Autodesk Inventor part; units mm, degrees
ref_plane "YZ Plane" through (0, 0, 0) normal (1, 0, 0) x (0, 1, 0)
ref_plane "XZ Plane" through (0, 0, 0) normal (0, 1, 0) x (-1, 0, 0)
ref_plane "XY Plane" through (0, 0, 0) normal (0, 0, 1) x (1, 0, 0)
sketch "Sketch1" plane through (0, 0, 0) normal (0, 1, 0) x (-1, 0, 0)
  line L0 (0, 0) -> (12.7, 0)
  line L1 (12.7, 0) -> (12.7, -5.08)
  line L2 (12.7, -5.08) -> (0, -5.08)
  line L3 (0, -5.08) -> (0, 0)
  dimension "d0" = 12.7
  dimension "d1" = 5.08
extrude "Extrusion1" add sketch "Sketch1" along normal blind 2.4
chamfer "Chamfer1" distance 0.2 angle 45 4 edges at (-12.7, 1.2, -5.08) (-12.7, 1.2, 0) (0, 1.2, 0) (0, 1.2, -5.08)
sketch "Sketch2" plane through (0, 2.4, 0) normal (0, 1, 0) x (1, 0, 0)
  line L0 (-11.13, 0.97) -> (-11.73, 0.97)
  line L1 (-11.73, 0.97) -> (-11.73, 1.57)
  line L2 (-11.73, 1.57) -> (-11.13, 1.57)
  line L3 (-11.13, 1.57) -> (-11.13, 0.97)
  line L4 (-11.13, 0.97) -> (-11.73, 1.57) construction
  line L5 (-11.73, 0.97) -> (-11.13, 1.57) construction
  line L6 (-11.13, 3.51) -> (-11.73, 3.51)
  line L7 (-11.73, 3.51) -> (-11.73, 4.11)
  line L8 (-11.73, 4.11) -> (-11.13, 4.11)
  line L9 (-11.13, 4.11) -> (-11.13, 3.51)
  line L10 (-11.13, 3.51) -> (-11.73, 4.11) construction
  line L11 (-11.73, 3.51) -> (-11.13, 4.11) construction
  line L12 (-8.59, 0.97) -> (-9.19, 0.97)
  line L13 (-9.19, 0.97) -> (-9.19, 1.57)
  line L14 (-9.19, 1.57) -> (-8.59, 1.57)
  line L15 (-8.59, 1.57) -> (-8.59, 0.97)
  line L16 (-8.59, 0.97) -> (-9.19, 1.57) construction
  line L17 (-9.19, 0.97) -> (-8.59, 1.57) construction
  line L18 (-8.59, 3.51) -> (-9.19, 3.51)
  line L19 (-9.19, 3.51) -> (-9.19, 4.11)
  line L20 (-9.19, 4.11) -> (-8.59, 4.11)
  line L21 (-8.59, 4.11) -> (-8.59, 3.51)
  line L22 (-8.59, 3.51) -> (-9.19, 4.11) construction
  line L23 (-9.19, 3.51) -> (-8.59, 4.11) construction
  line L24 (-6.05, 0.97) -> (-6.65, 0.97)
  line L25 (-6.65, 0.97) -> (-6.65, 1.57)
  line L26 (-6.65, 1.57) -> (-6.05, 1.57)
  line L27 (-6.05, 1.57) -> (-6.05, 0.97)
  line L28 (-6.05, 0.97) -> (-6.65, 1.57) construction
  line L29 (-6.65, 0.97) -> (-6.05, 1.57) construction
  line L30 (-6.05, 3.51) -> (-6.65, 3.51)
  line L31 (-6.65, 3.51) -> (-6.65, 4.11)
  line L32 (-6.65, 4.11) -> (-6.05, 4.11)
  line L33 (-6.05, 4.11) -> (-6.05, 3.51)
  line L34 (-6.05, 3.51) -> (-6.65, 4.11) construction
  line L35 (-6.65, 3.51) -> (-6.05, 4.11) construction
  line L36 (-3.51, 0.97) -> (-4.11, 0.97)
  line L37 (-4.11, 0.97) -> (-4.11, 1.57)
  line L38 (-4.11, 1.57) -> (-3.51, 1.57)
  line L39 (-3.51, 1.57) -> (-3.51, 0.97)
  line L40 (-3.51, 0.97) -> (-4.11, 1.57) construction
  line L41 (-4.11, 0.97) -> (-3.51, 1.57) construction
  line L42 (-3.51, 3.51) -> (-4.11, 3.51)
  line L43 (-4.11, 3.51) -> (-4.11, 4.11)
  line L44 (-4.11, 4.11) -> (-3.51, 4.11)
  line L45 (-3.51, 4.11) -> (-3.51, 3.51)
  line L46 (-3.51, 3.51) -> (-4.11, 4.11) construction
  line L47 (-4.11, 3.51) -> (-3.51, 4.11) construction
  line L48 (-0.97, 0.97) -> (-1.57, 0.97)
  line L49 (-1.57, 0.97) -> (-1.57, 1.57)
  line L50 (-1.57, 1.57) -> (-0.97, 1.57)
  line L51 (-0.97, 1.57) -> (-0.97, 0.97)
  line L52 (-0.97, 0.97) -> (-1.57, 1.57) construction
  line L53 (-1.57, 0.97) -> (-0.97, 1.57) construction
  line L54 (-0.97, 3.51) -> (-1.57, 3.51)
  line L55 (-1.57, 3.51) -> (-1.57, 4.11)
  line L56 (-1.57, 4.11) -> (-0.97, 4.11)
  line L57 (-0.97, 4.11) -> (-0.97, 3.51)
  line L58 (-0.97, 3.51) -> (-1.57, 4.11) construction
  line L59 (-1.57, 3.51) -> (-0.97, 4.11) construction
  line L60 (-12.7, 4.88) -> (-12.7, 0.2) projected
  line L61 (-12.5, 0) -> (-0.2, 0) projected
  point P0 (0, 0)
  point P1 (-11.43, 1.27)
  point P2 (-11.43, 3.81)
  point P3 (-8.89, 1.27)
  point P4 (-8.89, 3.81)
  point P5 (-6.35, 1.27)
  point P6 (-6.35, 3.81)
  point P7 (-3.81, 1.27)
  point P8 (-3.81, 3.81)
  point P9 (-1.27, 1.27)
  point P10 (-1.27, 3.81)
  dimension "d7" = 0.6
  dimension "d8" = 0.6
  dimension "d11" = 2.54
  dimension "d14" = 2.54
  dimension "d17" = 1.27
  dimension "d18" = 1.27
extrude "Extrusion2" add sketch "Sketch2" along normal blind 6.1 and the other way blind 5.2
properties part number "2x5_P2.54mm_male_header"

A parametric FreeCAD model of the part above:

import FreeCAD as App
import Part
import Sketcher
from FreeCAD import Vector


def edges_at(feature, points):
    """Names of the edges that pass closest to the given points."""
    edges = feature.Shape.Edges
    near = lambda p: min(range(len(edges)), key=lambda i: edges[i].distToShape(Part.Vertex(*p))[0])
    return sorted({f"Edge{near(p) + 1}" for p in points})


def add_polygon(sketch, points):
    """Adds a closed chain of lines whose ends are joined by coincident constraints."""
    first, n = sketch.GeometryCount, len(points)
    for a, b in zip(points, points[1:] + points[:1]):
        sketch.addGeometry(Part.LineSegment(App.Vector(*a, 0), App.Vector(*b, 0)), False)
    for i in range(n):
        sketch.addConstraint(Sketcher.Constraint("Coincident", first + i, 2, first + (i + 1) % n, 1))

doc = App.newDocument("Part")
body = doc.addObject("PartDesign::Body", "Body")

sketch1 = body.newObject("Sketcher::SketchObject", "Sketch")
sketch1.AttachmentSupport = (doc.getObject("XZ_Plane"), [""])
sketch1.MapMode = "FlatFace"
add_polygon(sketch1, [(-13, 0), (0, 0), (0, -5), (-13, -5)])
sketch1.addConstraint(Sketcher.Constraint("Horizontal", 0))
sketch1.addConstraint(Sketcher.Constraint("Vertical", 1))
sketch1.addConstraint(Sketcher.Constraint("Horizontal", 2))
sketch1.addConstraint(Sketcher.Constraint("Vertical", 3))
sketch1.addConstraint(Sketcher.Constraint("Coincident", 0, 2, -1, 1))
sketch1.addConstraint(Sketcher.Constraint("DistanceX", 0, 1, 0, 2, 12.7))
sketch1.addConstraint(Sketcher.Constraint("DistanceY", 1, 2, 1, 1, 5.08))
pad1 = body.newObject("PartDesign::Pad", "Pad")
pad1.Profile = sketch1
pad1.Length = 2.4
pad1.Reversed = True
doc.recompute()

chamfer = body.newObject("PartDesign::Chamfer", "Chamfer")
chamfer.Base = (pad1, edges_at(pad1, [
    (-12.7, 1.2, -5.08),
    (-12.7, 1.2, 0),
    (0, 1.2, 0),
    (0, 1.2, -5.08),
]))
chamfer.Size = 0.2

sketch2 = body.newObject("Sketcher::SketchObject", "Sketch001")
sketch2.AttachmentSupport = (doc.getObject("XZ_Plane"), [""])
sketch2.MapMode = "FlatFace"
sketch2.AttachmentOffset = App.Placement(Vector(0, 0, -2.4), App.Rotation())
add_polygon(sketch2, [(-11.7, -1), (-11.1, -1), (-11.1, -1.6), (-11.7, -1.6)])
add_polygon(sketch2, [(-11.7, -3.5), (-11.1, -3.5), (-11.1, -4.1), (-11.7, -4.1)])
add_polygon(sketch2, [(-9.2, -1), (-8.6, -1), (-8.6, -1.6), (-9.2, -1.6)])
add_polygon(sketch2, [(-9.2, -3.5), (-8.6, -3.5), (-8.6, -4.1), (-9.2, -4.1)])
add_polygon(sketch2, [(-6.7, -1), (-6, -1), (-6, -1.6), (-6.7, -1.6)])
add_polygon(sketch2, [(-6.7, -3.5), (-6, -3.5), (-6, -4.1), (-6.7, -4.1)])
add_polygon(sketch2, [(-4.1, -1), (-3.5, -1), (-3.5, -1.6), (-4.1, -1.6)])
add_polygon(sketch2, [(-4.1, -3.5), (-3.5, -3.5), (-3.5, -4.1), (-4.1, -4.1)])
add_polygon(sketch2, [(-1.6, -1), (-1, -1), (-1, -1.6), (-1.6, -1.6)])
add_polygon(sketch2, [(-1.6, -3.5), (-1, -3.5), (-1, -4.1), (-1.6, -4.1)])
sketch2.addConstraint(Sketcher.Constraint("Horizontal", 0))
sketch2.addConstraint(Sketcher.Constraint("Vertical", 1))
sketch2.addConstraint(Sketcher.Constraint("Horizontal", 2))
sketch2.addConstraint(Sketcher.Constraint("Vertical", 3))
sketch2.addConstraint(Sketcher.Constraint("Horizontal", 4))
sketch2.addConstraint(Sketcher.Constraint("Vertical", 5))
sketch2.addConstraint(Sketcher.Constraint("Horizontal", 6))
sketch2.addConstraint(Sketcher.Constraint("Vertical", 7))
sketch2.addConstraint(Sketcher.Constraint("Horizontal", 8))
sketch2.addConstraint(Sketcher.Constraint("Vertical", 9))
sketch2.addConstraint(Sketcher.Constraint("Horizontal", 10))
sketch2.addConstraint(Sketcher.Constraint("Vertical", 11))
sketch2.addConstraint(Sketcher.Constraint("Horizontal", 12))
sketch2.addConstraint(Sketcher.Constraint("Vertical", 13))
sketch2.addConstraint(Sketcher.Constraint("Horizontal", 14))
sketch2.addConstraint(Sketcher.Constraint("Vertical", 15))
sketch2.addConstraint(Sketcher.Constraint("Horizontal", 16))
sketch2.addConstraint(Sketcher.Constraint("Vertical", 17))
sketch2.addConstraint(Sketcher.Constraint("Horizontal", 18))
sketch2.addConstraint(Sketcher.Constraint("Vertical", 19))
sketch2.addConstraint(Sketcher.Constraint("Horizontal", 20))
sketch2.addConstraint(Sketcher.Constraint("Vertical", 21))
sketch2.addConstraint(Sketcher.Constraint("Horizontal", 22))
sketch2.addConstraint(Sketcher.Constraint("Vertical", 23))
sketch2.addConstraint(Sketcher.Constraint("Horizontal", 24))
sketch2.addConstraint(Sketcher.Constraint("Vertical", 25))
sketch2.addConstraint(Sketcher.Constraint("Horizontal", 26))
sketch2.addConstraint(Sketcher.Constraint("Vertical", 27))
sketch2.addConstraint(Sketcher.Constraint("Horizontal", 28))
sketch2.addConstraint(Sketcher.Constraint("Vertical", 29))
sketch2.addConstraint(Sketcher.Constraint("Horizontal", 30))
sketch2.addConstraint(Sketcher.Constraint("Vertical", 31))
sketch2.addConstraint(Sketcher.Constraint("Horizontal", 32))
sketch2.addConstraint(Sketcher.Constraint("Vertical", 33))
sketch2.addConstraint(Sketcher.Constraint("Horizontal", 34))
sketch2.addConstraint(Sketcher.Constraint("Vertical", 35))
sketch2.addConstraint(Sketcher.Constraint("Horizontal", 36))
sketch2.addConstraint(Sketcher.Constraint("Vertical", 37))
sketch2.addConstraint(Sketcher.Constraint("Horizontal", 38))
sketch2.addConstraint(Sketcher.Constraint("Vertical", 39))
sketch2.addConstraint(Sketcher.Constraint("Horizontal", 3, 2, 8, 2))
sketch2.addConstraint(Sketcher.Constraint("Horizontal", 2, 2, 9, 2))
sketch2.addConstraint(Sketcher.Constraint("Horizontal", 7, 2, 12, 2))
sketch2.addConstraint(Sketcher.Constraint("Horizontal", 6, 2, 13, 2))
sketch2.addConstraint(Sketcher.Constraint("Horizontal", 11, 2, 16, 2))
sketch2.addConstraint(Sketcher.Constraint("Horizontal", 10, 2, 17, 2))
sketch2.addConstraint(Sketcher.Constraint("Horizontal", 15, 2, 20, 2))
sketch2.addConstraint(Sketcher.Constraint("Horizontal", 14, 2, 21, 2))
sketch2.addConstraint(Sketcher.Constraint("Horizontal", 19, 2, 24, 2))
sketch2.addConstraint(Sketcher.Constraint("Horizontal", 18, 2, 25, 2))
sketch2.addConstraint(Sketcher.Constraint("Horizontal", 23, 2, 28, 2))
sketch2.addConstraint(Sketcher.Constraint("Horizontal", 22, 2, 29, 2))
sketch2.addConstraint(Sketcher.Constraint("Horizontal", 27, 2, 32, 2))
sketch2.addConstraint(Sketcher.Constraint("Horizontal", 26, 2, 33, 2))
sketch2.addConstraint(Sketcher.Constraint("Horizontal", 31, 2, 36, 2))
sketch2.addConstraint(Sketcher.Constraint("Horizontal", 30, 2, 37, 2))
sketch2.addConstraint(Sketcher.Constraint("Vertical", 1, 2, 4, 2))
sketch2.addConstraint(Sketcher.Constraint("Vertical", 3, 2, 6, 2))
sketch2.addConstraint(Sketcher.Constraint("Vertical", 9, 2, 12, 2))
sketch2.addConstraint(Sketcher.Constraint("Vertical", 11, 2, 14, 2))
sketch2.addConstraint(Sketcher.Constraint("Vertical", 17, 2, 20, 2))
sketch2.addConstraint(Sketcher.Constraint("Vertical", 19, 2, 22, 2))
sketch2.addConstraint(Sketcher.Constraint("Vertical", 25, 2, 28, 2))
sketch2.addConstraint(Sketcher.Constraint("Vertical", 27, 2, 30, 2))
sketch2.addConstraint(Sketcher.Constraint("Vertical", 33, 2, 36, 2))
sketch2.addConstraint(Sketcher.Constraint("Vertical", 35, 2, 38, 2))
sketch2.addConstraint(Sketcher.Constraint("Equal", 6, 8))
sketch2.addConstraint(Sketcher.Constraint("Equal", 14, 16))
sketch2.addConstraint(Sketcher.Constraint("Equal", 22, 24))
sketch2.addConstraint(Sketcher.Constraint("Equal", 30, 32))
sketch2.addConstraint(Sketcher.Constraint("Equal", 38, 1))
sketch2.addConstraint(Sketcher.Constraint("Equal", 3, 5))
sketch2.addConstraint(Sketcher.Constraint("DistanceX", 0, 1, 0, 2, 0.6))
sketch2.addConstraint(Sketcher.Constraint("DistanceY", 4, 2, 0, 2, 2.54))
sketch2.addConstraint(Sketcher.Constraint("DistanceX", 0, 2, 8, 2, 2.54))
sketch2.addConstraint(Sketcher.Constraint("DistanceX", 8, 2, 16, 2, 2.54))
sketch2.addConstraint(Sketcher.Constraint("DistanceX", 16, 2, 24, 2, 2.54))
sketch2.addConstraint(Sketcher.Constraint("DistanceX", 24, 2, 32, 2, 2.54))
sketch2.addConstraint(Sketcher.Constraint("DistanceX", 0, 2, -1, 1, 11.13))
sketch2.addConstraint(Sketcher.Constraint("DistanceY", 0, 2, -1, 1, 0.97))
pad2 = body.newObject("PartDesign::Pad", "Pad001")
pad2.Profile = sketch2
pad2.Type = "TwoLengths"
pad2.Length = 6.1
pad2.Length2 = 5.2
pad2.Reversed = True

doc.recompute()
